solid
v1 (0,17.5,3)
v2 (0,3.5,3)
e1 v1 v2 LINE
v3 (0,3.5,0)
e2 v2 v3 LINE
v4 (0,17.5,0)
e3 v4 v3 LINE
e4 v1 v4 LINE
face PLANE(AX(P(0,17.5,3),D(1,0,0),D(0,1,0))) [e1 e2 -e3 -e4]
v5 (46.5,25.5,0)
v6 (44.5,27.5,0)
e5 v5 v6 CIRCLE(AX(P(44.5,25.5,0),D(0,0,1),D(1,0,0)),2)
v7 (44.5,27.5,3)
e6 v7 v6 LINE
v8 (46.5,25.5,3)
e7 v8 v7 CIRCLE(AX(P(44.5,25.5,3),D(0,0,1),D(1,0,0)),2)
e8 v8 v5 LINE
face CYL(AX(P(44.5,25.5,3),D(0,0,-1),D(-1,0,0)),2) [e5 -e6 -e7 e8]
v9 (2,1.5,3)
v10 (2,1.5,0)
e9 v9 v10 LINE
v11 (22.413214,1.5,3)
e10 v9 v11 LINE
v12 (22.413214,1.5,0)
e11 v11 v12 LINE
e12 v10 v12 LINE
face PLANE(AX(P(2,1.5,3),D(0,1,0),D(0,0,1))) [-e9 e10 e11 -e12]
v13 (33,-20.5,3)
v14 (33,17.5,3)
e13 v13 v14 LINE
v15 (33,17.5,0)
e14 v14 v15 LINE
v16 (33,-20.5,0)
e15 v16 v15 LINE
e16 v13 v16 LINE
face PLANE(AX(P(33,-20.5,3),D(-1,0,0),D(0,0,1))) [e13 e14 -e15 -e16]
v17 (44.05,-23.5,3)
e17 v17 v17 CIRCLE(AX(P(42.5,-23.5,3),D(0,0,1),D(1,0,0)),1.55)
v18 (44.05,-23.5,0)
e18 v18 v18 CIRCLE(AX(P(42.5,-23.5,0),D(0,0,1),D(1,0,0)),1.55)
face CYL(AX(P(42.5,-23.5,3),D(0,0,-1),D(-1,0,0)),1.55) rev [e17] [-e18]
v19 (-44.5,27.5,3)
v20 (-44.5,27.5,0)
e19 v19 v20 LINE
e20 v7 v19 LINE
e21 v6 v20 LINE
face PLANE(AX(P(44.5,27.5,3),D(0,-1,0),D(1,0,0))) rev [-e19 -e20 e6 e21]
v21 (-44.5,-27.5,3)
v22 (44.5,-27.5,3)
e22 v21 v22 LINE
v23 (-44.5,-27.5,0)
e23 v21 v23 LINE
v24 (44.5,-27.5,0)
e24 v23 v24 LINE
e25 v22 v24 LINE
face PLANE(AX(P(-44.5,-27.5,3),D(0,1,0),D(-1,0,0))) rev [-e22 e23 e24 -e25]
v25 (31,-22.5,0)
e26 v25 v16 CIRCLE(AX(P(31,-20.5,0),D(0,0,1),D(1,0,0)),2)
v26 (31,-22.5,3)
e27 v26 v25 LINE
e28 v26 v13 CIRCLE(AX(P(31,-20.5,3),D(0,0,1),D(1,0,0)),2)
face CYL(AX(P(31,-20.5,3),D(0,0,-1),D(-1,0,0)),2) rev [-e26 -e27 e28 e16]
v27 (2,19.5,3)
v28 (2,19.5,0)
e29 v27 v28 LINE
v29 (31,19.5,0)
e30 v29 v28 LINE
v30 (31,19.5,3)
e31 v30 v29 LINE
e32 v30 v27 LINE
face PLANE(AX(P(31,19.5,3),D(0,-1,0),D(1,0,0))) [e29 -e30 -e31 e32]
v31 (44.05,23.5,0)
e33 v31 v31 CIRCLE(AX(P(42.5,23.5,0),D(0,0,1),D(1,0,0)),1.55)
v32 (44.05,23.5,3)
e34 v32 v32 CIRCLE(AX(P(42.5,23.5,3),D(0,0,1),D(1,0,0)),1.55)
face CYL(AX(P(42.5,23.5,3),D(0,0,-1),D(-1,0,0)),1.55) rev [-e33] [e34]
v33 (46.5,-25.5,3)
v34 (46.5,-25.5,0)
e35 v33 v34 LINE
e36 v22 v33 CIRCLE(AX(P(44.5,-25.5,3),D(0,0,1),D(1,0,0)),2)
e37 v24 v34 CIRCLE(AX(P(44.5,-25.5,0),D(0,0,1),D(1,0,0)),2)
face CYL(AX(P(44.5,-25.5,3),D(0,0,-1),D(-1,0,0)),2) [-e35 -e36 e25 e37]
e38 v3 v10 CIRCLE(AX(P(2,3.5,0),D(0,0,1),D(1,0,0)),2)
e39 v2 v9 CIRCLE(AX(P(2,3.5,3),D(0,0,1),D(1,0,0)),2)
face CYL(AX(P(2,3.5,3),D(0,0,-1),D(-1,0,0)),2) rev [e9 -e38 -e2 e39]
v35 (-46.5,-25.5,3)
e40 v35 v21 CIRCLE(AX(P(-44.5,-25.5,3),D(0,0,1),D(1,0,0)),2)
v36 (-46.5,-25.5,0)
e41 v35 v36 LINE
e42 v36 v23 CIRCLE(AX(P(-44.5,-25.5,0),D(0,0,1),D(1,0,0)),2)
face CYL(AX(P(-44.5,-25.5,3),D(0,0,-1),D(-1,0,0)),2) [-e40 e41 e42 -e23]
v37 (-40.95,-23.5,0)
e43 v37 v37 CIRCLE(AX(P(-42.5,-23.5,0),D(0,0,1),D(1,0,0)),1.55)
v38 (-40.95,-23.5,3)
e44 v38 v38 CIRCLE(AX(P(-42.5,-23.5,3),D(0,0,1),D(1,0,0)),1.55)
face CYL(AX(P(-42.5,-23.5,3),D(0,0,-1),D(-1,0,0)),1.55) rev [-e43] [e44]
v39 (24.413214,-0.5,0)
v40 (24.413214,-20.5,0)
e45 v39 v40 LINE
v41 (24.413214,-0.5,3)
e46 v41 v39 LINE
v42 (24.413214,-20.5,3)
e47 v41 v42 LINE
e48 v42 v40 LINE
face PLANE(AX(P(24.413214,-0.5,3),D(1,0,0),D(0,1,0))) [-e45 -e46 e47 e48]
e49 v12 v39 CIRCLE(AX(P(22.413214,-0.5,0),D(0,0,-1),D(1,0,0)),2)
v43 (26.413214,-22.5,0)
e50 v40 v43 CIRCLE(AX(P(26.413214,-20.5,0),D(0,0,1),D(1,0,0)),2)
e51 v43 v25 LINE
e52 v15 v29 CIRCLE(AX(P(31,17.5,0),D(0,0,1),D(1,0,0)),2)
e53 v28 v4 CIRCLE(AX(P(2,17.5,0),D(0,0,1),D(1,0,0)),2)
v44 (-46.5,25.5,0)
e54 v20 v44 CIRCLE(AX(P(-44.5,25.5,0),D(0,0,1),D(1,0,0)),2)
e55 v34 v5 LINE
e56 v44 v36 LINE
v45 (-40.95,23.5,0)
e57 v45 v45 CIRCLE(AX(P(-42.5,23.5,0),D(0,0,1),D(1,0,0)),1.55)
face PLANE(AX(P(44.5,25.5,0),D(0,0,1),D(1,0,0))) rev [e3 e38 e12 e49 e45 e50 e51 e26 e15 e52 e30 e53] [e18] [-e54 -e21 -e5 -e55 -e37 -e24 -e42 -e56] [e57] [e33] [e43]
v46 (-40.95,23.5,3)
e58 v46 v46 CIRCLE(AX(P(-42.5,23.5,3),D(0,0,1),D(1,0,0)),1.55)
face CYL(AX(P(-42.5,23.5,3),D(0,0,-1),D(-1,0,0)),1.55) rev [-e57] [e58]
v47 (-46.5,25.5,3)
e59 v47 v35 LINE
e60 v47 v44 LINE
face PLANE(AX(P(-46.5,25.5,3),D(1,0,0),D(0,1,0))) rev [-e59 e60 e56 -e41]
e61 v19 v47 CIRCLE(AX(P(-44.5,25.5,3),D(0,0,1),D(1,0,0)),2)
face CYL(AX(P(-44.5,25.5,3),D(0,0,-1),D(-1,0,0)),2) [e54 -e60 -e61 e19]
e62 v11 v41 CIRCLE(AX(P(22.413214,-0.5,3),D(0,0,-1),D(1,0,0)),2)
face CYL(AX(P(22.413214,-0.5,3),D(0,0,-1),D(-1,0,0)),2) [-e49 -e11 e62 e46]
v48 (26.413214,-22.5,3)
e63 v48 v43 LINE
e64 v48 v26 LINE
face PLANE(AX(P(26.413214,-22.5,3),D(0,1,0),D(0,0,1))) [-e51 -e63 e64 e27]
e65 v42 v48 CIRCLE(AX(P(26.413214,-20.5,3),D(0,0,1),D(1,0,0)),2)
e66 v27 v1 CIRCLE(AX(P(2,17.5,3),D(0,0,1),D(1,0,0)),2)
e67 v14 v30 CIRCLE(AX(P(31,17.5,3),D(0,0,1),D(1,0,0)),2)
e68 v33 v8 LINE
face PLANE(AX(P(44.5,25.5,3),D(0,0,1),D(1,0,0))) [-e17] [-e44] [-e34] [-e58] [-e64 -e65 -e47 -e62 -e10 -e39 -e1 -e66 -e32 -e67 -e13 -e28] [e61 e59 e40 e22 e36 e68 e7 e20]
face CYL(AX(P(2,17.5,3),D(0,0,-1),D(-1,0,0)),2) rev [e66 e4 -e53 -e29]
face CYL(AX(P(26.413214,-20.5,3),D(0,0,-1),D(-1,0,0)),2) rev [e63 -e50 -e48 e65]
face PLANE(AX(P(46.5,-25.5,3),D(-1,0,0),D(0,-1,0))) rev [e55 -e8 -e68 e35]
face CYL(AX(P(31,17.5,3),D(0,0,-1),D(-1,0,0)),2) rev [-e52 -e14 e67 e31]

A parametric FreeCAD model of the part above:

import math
import FreeCAD as App
import Part
import Sketcher

V = App.Vector

doc = App.newDocument("Part")
body = doc.addObject("PartDesign::Body", "Body")

# Sketch on XY plane
sketch1 = body.newObject("Sketcher::SketchObject", "Sketch")
sketch1.AttachmentSupport = (doc.getObject("XY_Plane"), [""])
sketch1.MapMode = "FlatFace"
sketch1.addGeometry([
    Part.LineSegment(V(-46.5, 25.5, 0), V(-46.5, -25.5, 0)),  # 0
    Part.ArcOfCircle(Part.Circle(V(-44.5, -25.5, 0), V(0, 0, 1), 2), math.radians(-180), math.radians(-90)),  # 1
    Part.LineSegment(V(-44.5, -27.5, 0), V(44.5, -27.5, 0)),  # 2
    Part.ArcOfCircle(Part.Circle(V(44.5, -25.5, 0), V(0, 0, 1), 2), math.radians(-90), math.radians(0)),  # 3
    Part.LineSegment(V(46.5, -25.5, 0), V(46.5, 25.5, 0)),  # 4
    Part.ArcOfCircle(Part.Circle(V(44.5, 25.5, 0), V(0, 0, 1), 2), math.radians(0), math.radians(90)),  # 5
    Part.LineSegment(V(44.5, 27.5, 0), V(-44.5, 27.5, 0)),  # 6
    Part.ArcOfCircle(Part.Circle(V(-44.5, 25.5, 0), V(0, 0, 1), 2), math.radians(90), math.radians(180)),  # 7
    Part.Circle(V(-42.5, -23.5, 0), V(0, 0, 1), 1.55),  # 8
    Part.Circle(V(42.5, -23.5, 0), V(0, 0, 1), 1.55),  # 9
    Part.LineSegment(V(2, 19.5, 0), V(31, 19.5, 0)),  # 10
    Part.ArcOfCircle(Part.Circle(V(31, 17.5, 0), V(0, 0, 1), 2), math.radians(0), math.radians(90)),  # 11
    Part.LineSegment(V(33, 17.5, 0), V(33, -20.5, 0)),  # 12
    Part.ArcOfCircle(Part.Circle(V(31, -20.5, 0), V(0, 0, 1), 2), math.radians(-90), math.radians(0)),  # 13
    Part.LineSegment(V(31, -22.5, 0), V(26.413214, -22.5, 0)),  # 14
    Part.ArcOfCircle(Part.Circle(V(26.413214, -20.5, 0), V(0, 0, 1), 2), math.radians(180), math.radians(270)),  # 15
    Part.LineSegment(V(24.413214, -20.5, 0), V(24.413214, -0.5, 0)),  # 16
    Part.ArcOfCircle(Part.Circle(V(22.413214, -0.5, 0), V(0, 0, 1), 2), math.radians(0), math.radians(90)),  # 17
    Part.LineSegment(V(22.413214, 1.5, 0), V(2, 1.5, 0)),  # 18
    Part.ArcOfCircle(Part.Circle(V(2, 3.5, 0), V(0, 0, 1), 2), math.radians(-180), math.radians(-90)),  # 19
    Part.LineSegment(V(0, 3.5, 0), V(0, 17.5, 0)),  # 20
    Part.ArcOfCircle(Part.Circle(V(2, 17.5, 0), V(0, 0, 1), 2), math.radians(90), math.radians(180)),  # 21
    Part.Circle(V(-42.5, 23.5, 0), V(0, 0, 1), 1.55),  # 22
    Part.Circle(V(42.5, 23.5, 0), V(0, 0, 1), 1.55),  # 23
], False)
sketch1.addConstraint([
    Sketcher.Constraint("Tangent", 0, 2, 1, 1),
    Sketcher.Constraint("Tangent", 1, 2, 2, 1),
    Sketcher.Constraint("Tangent", 2, 2, 3, 1),
    Sketcher.Constraint("Tangent", 3, 2, 4, 1),
    Sketcher.Constraint("Tangent", 4, 2, 5, 1),
    Sketcher.Constraint("Tangent", 5, 2, 6, 1),
    Sketcher.Constraint("Tangent", 6, 2, 7, 1),
    Sketcher.Constraint("Tangent", 7, 2, 0, 1),
    Sketcher.Constraint("Tangent", 10, 2, 11, 2),
    Sketcher.Constraint("Tangent", 11, 1, 12, 1),
    Sketcher.Constraint("Tangent", 12, 2, 13, 2),
    Sketcher.Constraint("Tangent", 13, 1, 14, 1),
    Sketcher.Constraint("Tangent", 14, 2, 15, 2),
    Sketcher.Constraint("Tangent", 15, 1, 16, 1),
    Sketcher.Constraint("Tangent", 16, 2, 17, 1),
    Sketcher.Constraint("Tangent", 17, 2, 18, 1),
    Sketcher.Constraint("Tangent", 18, 2, 19, 2),
    Sketcher.Constraint("Tangent", 19, 1, 20, 1),
    Sketcher.Constraint("Tangent", 20, 2, 21, 2),
    Sketcher.Constraint("Tangent", 21, 1, 10, 1),
    Sketcher.Constraint("Vertical", 0),
    Sketcher.Constraint("Horizontal", 2),
    Sketcher.Constraint("Vertical", 4),
    Sketcher.Constraint("Horizontal", 6),
    Sketcher.Constraint("Horizontal", 10),
    Sketcher.Constraint("Vertical", 12),
    Sketcher.Constraint("Horizontal", 14),
    Sketcher.Constraint("Vertical", 16),
    Sketcher.Constraint("Horizontal", 18),
    Sketcher.Constraint("Vertical", 20),
    Sketcher.Constraint("Equal", 1, 3),
    Sketcher.Constraint("Equal", 3, 5),
    Sketcher.Constraint("Equal", 5, 7),
    Sketcher.Constraint("Equal", 8, 9),
    Sketcher.Constraint("Equal", 7, 11),
    Sketcher.Constraint("Equal", 11, 13),
    Sketcher.Constraint("Equal", 13, 15),
    Sketcher.Constraint("Equal", 15, 17),
    Sketcher.Constraint("Equal", 17, 19),
    Sketcher.Constraint("Equal", 19, 21),
    Sketcher.Constraint("Equal", 9, 22),
    Sketcher.Constraint("Equal", 22, 23),
    Sketcher.Constraint("Symmetric", 1, 3, 5, 3, -1, 1),
    Sketcher.Constraint("Symmetric", 9, 3, 22, 3, -1, 1),
    Sketcher.Constraint("Symmetric", 8, 3, 23, 3, -1, 1),
    Sketcher.Constraint("Symmetric", 8, 3, 9, 3, -2),
    Sketcher.Constraint("PointOnObject", 19, 1, -2),
    Sketcher.Constraint("Radius", 1, 2.0),
    Sketcher.Constraint("Diameter", 8, 3.1),
    Sketcher.Constraint("DistanceX", 2, 1, 2, 2, 89.0),
    Sketcher.Constraint("DistanceX", 10, 1, 10, 2, 29.0),
    Sketcher.Constraint("DistanceY", 0, 2, 0, 1, 51.0),
    Sketcher.Constraint("DistanceY", 12, 2, 12, 1, 38.0),
    Sketcher.Constraint("DistanceY", 16, 1, 16, 2, 20.0),
    Sketcher.Constraint("DistanceX", 1, 3, 8, 3, 2.0),
    Sketcher.Constraint("DistanceY", 1, 3, 8, 3, 2.0),
    Sketcher.Constraint("DistanceY", 11, 3, 5, 3, 8.0),
    Sketcher.Constraint("DistanceX", 14, 2, 14, 1, 4.586786),
])
pad1 = body.newObject("PartDesign::Pad", "Pad")
pad1.Profile = sketch1
pad1.Length = 3

doc.recompute()
